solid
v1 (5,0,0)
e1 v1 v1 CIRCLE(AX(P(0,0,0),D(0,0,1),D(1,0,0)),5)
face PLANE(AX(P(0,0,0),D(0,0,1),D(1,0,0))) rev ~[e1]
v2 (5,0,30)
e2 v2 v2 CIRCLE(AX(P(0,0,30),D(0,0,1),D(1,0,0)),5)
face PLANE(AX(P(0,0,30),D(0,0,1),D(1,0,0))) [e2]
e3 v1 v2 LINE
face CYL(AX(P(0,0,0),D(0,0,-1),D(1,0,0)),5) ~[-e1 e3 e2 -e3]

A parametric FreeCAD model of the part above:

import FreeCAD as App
import Part
import Sketcher
from FreeCAD import Vector

doc = App.newDocument("Part")
params = doc.addObject("Spreadsheet::Sheet", "Params")
for row, (alias, value) in enumerate([
    ("sketch1_diameter", "10 mm"),
    ("pad1_length", "30 mm"),
], start=1):
    params.set(f"A{row}", alias)
    params.set(f"B{row}", "=" + value)
    params.setAlias(f"B{row}", alias)

body = doc.addObject("PartDesign::Body", "Body")

# Sketch on XY plane
sketch1 = body.newObject("Sketcher::SketchObject", "Sketch")
sketch1.AttachmentSupport = (doc.getObject("XY_Plane"), [""])
sketch1.MapMode = "FlatFace"
sketch1.addGeometry(Part.Circle(Vector(0, 0, 0), Vector(0, 0, 1), 5), False)
sketch1.addConstraint([
    Sketcher.Constraint("Coincident", 0, 3, -1, 1),
    Sketcher.Constraint("Diameter", 0, 10.0),
])
sketch1.setExpression("Constraints[1]", "Params.sketch1_diameter")
pad1 = body.newObject("PartDesign::Pad", "Pad")
pad1.Profile = sketch1
pad1.setExpression("Length", "Params.pad1_length")

doc.recompute()
